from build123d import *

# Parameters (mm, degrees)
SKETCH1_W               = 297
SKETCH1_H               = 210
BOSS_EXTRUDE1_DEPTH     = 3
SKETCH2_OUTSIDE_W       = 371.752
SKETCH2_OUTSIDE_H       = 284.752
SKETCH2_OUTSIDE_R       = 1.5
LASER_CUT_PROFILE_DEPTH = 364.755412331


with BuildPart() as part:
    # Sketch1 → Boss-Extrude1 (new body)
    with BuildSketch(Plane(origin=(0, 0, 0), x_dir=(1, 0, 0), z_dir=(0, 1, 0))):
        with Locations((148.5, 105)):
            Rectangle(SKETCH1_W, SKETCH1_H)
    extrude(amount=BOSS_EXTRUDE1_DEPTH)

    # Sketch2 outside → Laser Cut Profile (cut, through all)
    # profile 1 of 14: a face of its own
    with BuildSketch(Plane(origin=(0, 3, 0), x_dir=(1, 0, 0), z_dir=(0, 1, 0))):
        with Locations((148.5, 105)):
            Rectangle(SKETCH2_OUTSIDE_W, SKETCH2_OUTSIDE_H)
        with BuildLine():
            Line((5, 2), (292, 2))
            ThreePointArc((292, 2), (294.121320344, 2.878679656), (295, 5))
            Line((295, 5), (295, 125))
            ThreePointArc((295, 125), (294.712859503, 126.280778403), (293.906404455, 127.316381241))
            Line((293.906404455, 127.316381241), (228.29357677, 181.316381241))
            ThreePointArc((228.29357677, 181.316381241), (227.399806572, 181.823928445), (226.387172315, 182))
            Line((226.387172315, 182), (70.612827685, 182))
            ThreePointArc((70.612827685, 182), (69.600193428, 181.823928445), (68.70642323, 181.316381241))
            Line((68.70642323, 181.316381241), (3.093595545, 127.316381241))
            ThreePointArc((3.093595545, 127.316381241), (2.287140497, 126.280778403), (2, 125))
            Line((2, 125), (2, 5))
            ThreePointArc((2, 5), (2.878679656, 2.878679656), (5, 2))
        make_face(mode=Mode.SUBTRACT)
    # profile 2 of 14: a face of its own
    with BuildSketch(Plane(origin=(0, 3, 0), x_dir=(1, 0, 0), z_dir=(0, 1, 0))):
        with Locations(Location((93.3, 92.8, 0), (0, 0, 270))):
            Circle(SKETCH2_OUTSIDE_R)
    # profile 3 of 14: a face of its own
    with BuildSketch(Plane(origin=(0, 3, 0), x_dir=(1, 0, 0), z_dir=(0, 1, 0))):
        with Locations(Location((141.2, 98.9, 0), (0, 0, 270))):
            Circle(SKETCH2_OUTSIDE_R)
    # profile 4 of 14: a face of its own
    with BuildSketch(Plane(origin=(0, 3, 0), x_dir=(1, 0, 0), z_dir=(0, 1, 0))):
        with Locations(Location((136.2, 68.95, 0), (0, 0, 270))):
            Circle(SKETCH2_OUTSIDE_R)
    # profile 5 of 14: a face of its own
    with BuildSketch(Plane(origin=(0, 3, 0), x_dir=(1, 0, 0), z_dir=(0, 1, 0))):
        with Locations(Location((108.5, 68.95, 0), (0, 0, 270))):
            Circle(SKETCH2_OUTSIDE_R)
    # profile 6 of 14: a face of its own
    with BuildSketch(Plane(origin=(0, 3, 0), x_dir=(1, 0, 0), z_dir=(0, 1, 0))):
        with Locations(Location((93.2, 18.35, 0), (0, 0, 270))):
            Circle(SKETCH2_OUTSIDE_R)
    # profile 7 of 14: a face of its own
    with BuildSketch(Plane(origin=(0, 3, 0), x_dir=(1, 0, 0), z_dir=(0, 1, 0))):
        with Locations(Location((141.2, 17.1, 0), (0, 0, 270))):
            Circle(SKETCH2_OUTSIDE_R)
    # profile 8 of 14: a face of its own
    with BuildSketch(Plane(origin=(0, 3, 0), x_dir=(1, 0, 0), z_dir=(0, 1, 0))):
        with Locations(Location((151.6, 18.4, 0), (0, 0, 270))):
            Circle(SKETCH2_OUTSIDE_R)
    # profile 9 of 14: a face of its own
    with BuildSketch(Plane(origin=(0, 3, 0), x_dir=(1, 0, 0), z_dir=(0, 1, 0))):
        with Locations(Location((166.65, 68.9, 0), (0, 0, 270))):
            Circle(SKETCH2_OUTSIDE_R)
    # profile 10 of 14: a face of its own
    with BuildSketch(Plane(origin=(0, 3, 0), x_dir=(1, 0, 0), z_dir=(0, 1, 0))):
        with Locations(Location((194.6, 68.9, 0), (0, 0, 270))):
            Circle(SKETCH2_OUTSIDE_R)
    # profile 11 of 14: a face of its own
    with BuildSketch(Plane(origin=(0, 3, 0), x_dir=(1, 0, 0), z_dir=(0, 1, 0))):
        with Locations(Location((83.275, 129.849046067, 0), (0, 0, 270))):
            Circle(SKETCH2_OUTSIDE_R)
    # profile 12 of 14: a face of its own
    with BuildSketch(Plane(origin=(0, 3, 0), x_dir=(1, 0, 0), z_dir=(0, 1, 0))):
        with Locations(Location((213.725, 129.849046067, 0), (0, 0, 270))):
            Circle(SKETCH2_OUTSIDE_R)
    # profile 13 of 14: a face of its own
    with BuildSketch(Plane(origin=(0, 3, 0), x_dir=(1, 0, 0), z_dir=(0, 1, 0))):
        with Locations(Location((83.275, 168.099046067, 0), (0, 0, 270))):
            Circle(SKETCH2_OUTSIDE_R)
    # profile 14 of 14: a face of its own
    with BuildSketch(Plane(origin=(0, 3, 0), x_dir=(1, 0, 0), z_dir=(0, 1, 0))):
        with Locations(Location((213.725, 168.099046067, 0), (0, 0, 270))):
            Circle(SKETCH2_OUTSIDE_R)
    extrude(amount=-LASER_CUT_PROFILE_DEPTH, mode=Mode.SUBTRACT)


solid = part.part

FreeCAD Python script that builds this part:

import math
import FreeCAD as App
import Part
import Sketcher

V = App.Vector


def add_polygon(sketch, points):
    """Adds a closed chain of lines whose ends are joined by coincident constraints."""
    first, n = sketch.GeometryCount, len(points)
    for a, b in zip(points, points[1:] + points[:1]):
        sketch.addGeometry(Part.LineSegment(App.Vector(*a, 0), App.Vector(*b, 0)), False)
    for i in range(n):
        sketch.addConstraint(Sketcher.Constraint("Coincident", first + i, 2, first + (i + 1) % n, 1))

doc = App.newDocument("Part")
body = doc.addObject("PartDesign::Body", "Body")

# Sketch on XZ plane
sketch1 = body.newObject("Sketcher::SketchObject", "Sketch")
sketch1.AttachmentSupport = (doc.getObject("XZ_Plane"), [""])
sketch1.MapMode = "FlatFace"
add_polygon(sketch1, [(0, -210), (0, 0), (297, 0), (297, -210)])  # lines 0-3
sketch1.addConstraint(Sketcher.Constraint("Vertical", 0))
sketch1.addConstraint(Sketcher.Constraint("Horizontal", 1))
sketch1.addConstraint(Sketcher.Constraint("Vertical", 2))
sketch1.addConstraint(Sketcher.Constraint("Horizontal", 3))
sketch1.addConstraint(Sketcher.Constraint("Coincident", 0, 2, -1, 1))
sketch1.addConstraint(Sketcher.Constraint("DistanceX", 1, 1, 1, 2, 297.0))
sketch1.addConstraint(Sketcher.Constraint("DistanceY", 0, 1, 0, 2, 210.0))
pad1 = body.newObject("PartDesign::Pad", "Pad")
pad1.Profile = sketch1
pad1.Length = 3
pad1.Reversed = True

# Sketch on XZ plane
sketch2 = body.newObject("Sketcher::SketchObject", "Sketch001")
sketch2.AttachmentSupport = (doc.getObject("XZ_Plane"), [""])
sketch2.MapMode = "FlatFace"
sketch2.AttachmentOffset = App.Placement(V(0, 0, -3), App.Rotation())
add_polygon(sketch2, [(-37.376, -247.376), (-37.376, 37.376), (334.376, 37.376), (334.376, -247.376)])  # lines 0-3
sketch2.addGeometry(Part.LineSegment(V(292, -2, 0), V(5, -2, 0)), False)  # 4
sketch2.addGeometry(Part.ArcOfCircle(Part.Circle(V(5, -5, 0), V(0, 0, 1), 3), math.radians(90), math.radians(180)), False)  # 5
sketch2.addGeometry(Part.LineSegment(V(2, -5, 0), V(2, -125, 0)), False)  # 6
sketch2.addGeometry(Part.ArcOfCircle(Part.Circle(V(5, -125, 0), V(0, 0, 1), 3), math.radians(180), math.radians(230.545285)), False)  # 7
sketch2.addGeometry(Part.LineSegment(V(3.093596, -127.316381, 0), V(68.706423, -181.316381, 0)), False)  # 8
sketch2.addGeometry(Part.ArcOfCircle(Part.Circle(V(70.612828, -179, 0), V(0, 0, 1), 3), math.radians(-129.454715), math.radians(-90)), False)  # 9
sketch2.addGeometry(Part.LineSegment(V(70.612828, -182, 0), V(226.387172, -182, 0)), False)  # 10
sketch2.addGeometry(Part.ArcOfCircle(Part.Circle(V(226.387172, -179, 0), V(0, 0, 1), 3), math.radians(-90), math.radians(-50.545285)), False)  # 11
sketch2.addGeometry(Part.LineSegment(V(228.293577, -181.316381, 0), V(293.906404, -127.316381, 0)), False)  # 12
sketch2.addGeometry(Part.ArcOfCircle(Part.Circle(V(292, -125, 0), V(0, 0, 1), 3), math.radians(-50.545285), math.radians(0)), False)  # 13
sketch2.addGeometry(Part.LineSegment(V(295, -125, 0), V(295, -5, 0)), False)  # 14
sketch2.addGeometry(Part.ArcOfCircle(Part.Circle(V(292, -5, 0), V(0, 0, 1), 3), math.radians(0), math.radians(90)), False)  # 15
sketch2.addGeometry(Part.Circle(V(93.3, -92.8, 0), V(0, 0, 1), 1.5), False)  # 16
sketch2.addGeometry(Part.Circle(V(141.2, -98.9, 0), V(0, 0, 1), 1.5), False)  # 17
sketch2.addGeometry(Part.Circle(V(136.2, -68.95, 0), V(0, 0, 1), 1.5), False)  # 18
sketch2.addGeometry(Part.Circle(V(108.5, -68.95, 0), V(0, 0, 1), 1.5), False)  # 19
sketch2.addGeometry(Part.Circle(V(93.2, -18.35, 0), V(0, 0, 1), 1.5), False)  # 20
sketch2.addGeometry(Part.Circle(V(141.2, -17.1, 0), V(0, 0, 1), 1.5), False)  # 21
sketch2.addGeometry(Part.Circle(V(151.6, -18.4, 0), V(0, 0, 1), 1.5), False)  # 22
sketch2.addGeometry(Part.Circle(V(166.65, -68.9, 0), V(0, 0, 1), 1.5), False)  # 23
sketch2.addGeometry(Part.Circle(V(194.6, -68.9, 0), V(0, 0, 1), 1.5), False)  # 24
sketch2.addGeometry(Part.Circle(V(83.275, -129.849046, 0), V(0, 0, 1), 1.5), False)  # 25
sketch2.addGeometry(Part.Circle(V(213.725, -129.849046, 0), V(0, 0, 1), 1.5), False)  # 26
sketch2.addGeometry(Part.Circle(V(83.275, -168.099046, 0), V(0, 0, 1), 1.5), False)  # 27
sketch2.addGeometry(Part.Circle(V(213.725, -168.099046, 0), V(0, 0, 1), 1.5), False)  # 28
sketch2.addConstraint(Sketcher.Constraint("Tangent", 4, 2, 5, 1))
sketch2.addConstraint(Sketcher.Constraint("Tangent", 5, 2, 6, 1))
sketch2.addConstraint(Sketcher.Constraint("Tangent", 6, 2, 7, 1))
sketch2.addConstraint(Sketcher.Constraint("Tangent", 7, 2, 8, 1))
sketch2.addConstraint(Sketcher.Constraint("Tangent", 8, 2, 9, 1))
sketch2.addConstraint(Sketcher.Constraint("Tangent", 9, 2, 10, 1))
sketch2.addConstraint(Sketcher.Constraint("Tangent", 10, 2, 11, 1))
sketch2.addConstraint(Sketcher.Constraint("Tangent", 11, 2, 12, 1))
sketch2.addConstraint(Sketcher.Constraint("Tangent", 12, 2, 13, 1))
sketch2.addConstraint(Sketcher.Constraint("Tangent", 13, 2, 14, 1))
sketch2.addConstraint(Sketcher.Constraint("Tangent", 14, 2, 15, 1))
sketch2.addConstraint(Sketcher.Constraint("Tangent", 15, 2, 4, 1))
sketch2.addConstraint(Sketcher.Constraint("Vertical", 0))
sketch2.addConstraint(Sketcher.Constraint("Horizontal", 1))
sketch2.addConstraint(Sketcher.Constraint("Vertical", 2))
sketch2.addConstraint(Sketcher.Constraint("Horizontal", 3))
sketch2.addConstraint(Sketcher.Constraint("Horizontal", 4))
sketch2.addConstraint(Sketcher.Constraint("Vertical", 6))
sketch2.addConstraint(Sketcher.Constraint("Horizontal", 10))
sketch2.addConstraint(Sketcher.Constraint("Vertical", 14))
sketch2.addConstraint(Sketcher.Constraint("Equal", 5, 7))
sketch2.addConstraint(Sketcher.Constraint("Equal", 7, 9))
sketch2.addConstraint(Sketcher.Constraint("Equal", 9, 11))
sketch2.addConstraint(Sketcher.Constraint("Equal", 11, 13))
sketch2.addConstraint(Sketcher.Constraint("Equal", 13, 15))
sketch2.addConstraint(Sketcher.Constraint("Equal", 16, 17))
sketch2.addConstraint(Sketcher.Constraint("Equal", 17, 18))
sketch2.addConstraint(Sketcher.Constraint("Equal", 18, 19))
sketch2.addConstraint(Sketcher.Constraint("Equal", 19, 20))
sketch2.addConstraint(Sketcher.Constraint("Equal", 20, 21))
sketch2.addConstraint(Sketcher.Constraint("Equal", 21, 22))
sketch2.addConstraint(Sketcher.Constraint("Equal", 22, 23))
sketch2.addConstraint(Sketcher.Constraint("Equal", 23, 24))
sketch2.addConstraint(Sketcher.Constraint("Equal", 24, 25))
sketch2.addConstraint(Sketcher.Constraint("Equal", 25, 26))
sketch2.addConstraint(Sketcher.Constraint("Equal", 26, 27))
sketch2.addConstraint(Sketcher.Constraint("Equal", 27, 28))
sketch2.addConstraint(Sketcher.Constraint("Horizontal", 7, 3, 13, 3))
sketch2.addConstraint(Sketcher.Constraint("Horizontal", 18, 3, 19, 3))
sketch2.addConstraint(Sketcher.Constraint("Horizontal", 23, 3, 24, 3))
sketch2.addConstraint(Sketcher.Constraint("Horizontal", 25, 3, 26, 3))
sketch2.addConstraint(Sketcher.Constraint("Horizontal", 27, 3, 28, 3))
sketch2.addConstraint(Sketcher.Constraint("Horizontal", 8, 2, 11, 2))
sketch2.addConstraint(Sketcher.Constraint("Vertical", 17, 3, 21, 3))
sketch2.addConstraint(Sketcher.Constraint("Vertical", 25, 3, 27, 3))
sketch2.addConstraint(Sketcher.Constraint("Vertical", 26, 3, 28, 3))
sketch2.addConstraint(Sketcher.Constraint("Diameter", 16, 3.0))
sketch2.addConstraint(Sketcher.Constraint("Radius", 5, 3.0))
sketch2.addConstraint(Sketcher.Constraint("DistanceX", 4, 2, 4, 1, 287.0))
sketch2.addConstraint(Sketcher.Constraint("DistanceY", 6, 2, 6, 1, 120.0))
sketch2.addConstraint(Sketcher.Constraint("DistanceX", -1, 1, 5, 3, 5.0))
sketch2.addConstraint(Sketcher.Constraint("DistanceY", 5, 3, -1, 1, 5.0))
sketch2.addConstraint(Sketcher.Constraint("DistanceY", 9, 3, -1, 1, 179.0))
sketch2.addConstraint(Sketcher.Constraint("DistanceX", 18, 3, 17, 3, 5.0))
sketch2.addConstraint(Sketcher.Constraint("DistanceX", 20, 3, 18, 3, 43.0))
sketch2.addConstraint(Sketcher.Constraint("DistanceY", 17, 3, 23, 3, 30.0))
sketch2.addConstraint(Sketcher.Constraint("DistanceX", 22, 3, 24, 3, 43.0))
sketch2.addConstraint(Sketcher.Constraint("DistanceX", -1, 1, 16, 3, 93.3))
sketch2.addConstraint(Sketcher.Constraint("DistanceY", 16, 3, -1, 1, 92.8))
sketch2.addConstraint(Sketcher.Constraint("DistanceX", -1, 1, 17, 3, 141.2))
sketch2.addConstraint(Sketcher.Constraint("DistanceY", 17, 3, -1, 1, 98.9))
sketch2.addConstraint(Sketcher.Constraint("DistanceX", -1, 1, 19, 3, 108.5))
sketch2.addConstraint(Sketcher.Constraint("DistanceY", 21, 3, -1, 1, 17.1))
sketch2.addConstraint(Sketcher.Constraint("DistanceX", -1, 1, 22, 3, 151.6))
sketch2.addConstraint(Sketcher.Constraint("DistanceY", 22, 3, -1, 1, 18.4))
sketch2.addConstraint(Sketcher.Constraint("DistanceY", 19, 3, 20, 3, 50.6))
sketch2.addConstraint(Sketcher.Constraint("DistanceX", 1, 1, 1, 2, 371.752))
sketch2.addConstraint(Sketcher.Constraint("DistanceY", 0, 1, 0, 2, 284.752))
sketch2.addConstraint(Sketcher.Constraint("DistanceY", 18, 3, -1, 1, 68.95))
sketch2.addConstraint(Sketcher.Constraint("DistanceX", -1, 1, 23, 3, 166.65))
sketch2.addConstraint(Sketcher.Constraint("DistanceY", 27, 3, 25, 3, 38.25))
sketch2.addConstraint(Sketcher.Constraint("DistanceX", -1, 1, 25, 3, 83.275))
sketch2.addConstraint(Sketcher.Constraint("DistanceX", -1, 1, 26, 3, 213.725))
sketch2.addConstraint(Sketcher.Constraint("DistanceX", 0, 2, -1, 1, 37.376))
sketch2.addConstraint(Sketcher.Constraint("DistanceY", -1, 1, 0, 2, 37.376))
sketch2.addConstraint(Sketcher.Constraint("Distance", 8, 84.976721))
sketch2.addConstraint(Sketcher.Constraint("DistanceY", 25, 3, -1, 1, 129.849046))
pocket1 = body.newObject("PartDesign::Pocket", "Pocket")
pocket1.Profile = sketch2
pocket1.Length = 364.755412
pocket1.Reversed = True

doc.recompute()
